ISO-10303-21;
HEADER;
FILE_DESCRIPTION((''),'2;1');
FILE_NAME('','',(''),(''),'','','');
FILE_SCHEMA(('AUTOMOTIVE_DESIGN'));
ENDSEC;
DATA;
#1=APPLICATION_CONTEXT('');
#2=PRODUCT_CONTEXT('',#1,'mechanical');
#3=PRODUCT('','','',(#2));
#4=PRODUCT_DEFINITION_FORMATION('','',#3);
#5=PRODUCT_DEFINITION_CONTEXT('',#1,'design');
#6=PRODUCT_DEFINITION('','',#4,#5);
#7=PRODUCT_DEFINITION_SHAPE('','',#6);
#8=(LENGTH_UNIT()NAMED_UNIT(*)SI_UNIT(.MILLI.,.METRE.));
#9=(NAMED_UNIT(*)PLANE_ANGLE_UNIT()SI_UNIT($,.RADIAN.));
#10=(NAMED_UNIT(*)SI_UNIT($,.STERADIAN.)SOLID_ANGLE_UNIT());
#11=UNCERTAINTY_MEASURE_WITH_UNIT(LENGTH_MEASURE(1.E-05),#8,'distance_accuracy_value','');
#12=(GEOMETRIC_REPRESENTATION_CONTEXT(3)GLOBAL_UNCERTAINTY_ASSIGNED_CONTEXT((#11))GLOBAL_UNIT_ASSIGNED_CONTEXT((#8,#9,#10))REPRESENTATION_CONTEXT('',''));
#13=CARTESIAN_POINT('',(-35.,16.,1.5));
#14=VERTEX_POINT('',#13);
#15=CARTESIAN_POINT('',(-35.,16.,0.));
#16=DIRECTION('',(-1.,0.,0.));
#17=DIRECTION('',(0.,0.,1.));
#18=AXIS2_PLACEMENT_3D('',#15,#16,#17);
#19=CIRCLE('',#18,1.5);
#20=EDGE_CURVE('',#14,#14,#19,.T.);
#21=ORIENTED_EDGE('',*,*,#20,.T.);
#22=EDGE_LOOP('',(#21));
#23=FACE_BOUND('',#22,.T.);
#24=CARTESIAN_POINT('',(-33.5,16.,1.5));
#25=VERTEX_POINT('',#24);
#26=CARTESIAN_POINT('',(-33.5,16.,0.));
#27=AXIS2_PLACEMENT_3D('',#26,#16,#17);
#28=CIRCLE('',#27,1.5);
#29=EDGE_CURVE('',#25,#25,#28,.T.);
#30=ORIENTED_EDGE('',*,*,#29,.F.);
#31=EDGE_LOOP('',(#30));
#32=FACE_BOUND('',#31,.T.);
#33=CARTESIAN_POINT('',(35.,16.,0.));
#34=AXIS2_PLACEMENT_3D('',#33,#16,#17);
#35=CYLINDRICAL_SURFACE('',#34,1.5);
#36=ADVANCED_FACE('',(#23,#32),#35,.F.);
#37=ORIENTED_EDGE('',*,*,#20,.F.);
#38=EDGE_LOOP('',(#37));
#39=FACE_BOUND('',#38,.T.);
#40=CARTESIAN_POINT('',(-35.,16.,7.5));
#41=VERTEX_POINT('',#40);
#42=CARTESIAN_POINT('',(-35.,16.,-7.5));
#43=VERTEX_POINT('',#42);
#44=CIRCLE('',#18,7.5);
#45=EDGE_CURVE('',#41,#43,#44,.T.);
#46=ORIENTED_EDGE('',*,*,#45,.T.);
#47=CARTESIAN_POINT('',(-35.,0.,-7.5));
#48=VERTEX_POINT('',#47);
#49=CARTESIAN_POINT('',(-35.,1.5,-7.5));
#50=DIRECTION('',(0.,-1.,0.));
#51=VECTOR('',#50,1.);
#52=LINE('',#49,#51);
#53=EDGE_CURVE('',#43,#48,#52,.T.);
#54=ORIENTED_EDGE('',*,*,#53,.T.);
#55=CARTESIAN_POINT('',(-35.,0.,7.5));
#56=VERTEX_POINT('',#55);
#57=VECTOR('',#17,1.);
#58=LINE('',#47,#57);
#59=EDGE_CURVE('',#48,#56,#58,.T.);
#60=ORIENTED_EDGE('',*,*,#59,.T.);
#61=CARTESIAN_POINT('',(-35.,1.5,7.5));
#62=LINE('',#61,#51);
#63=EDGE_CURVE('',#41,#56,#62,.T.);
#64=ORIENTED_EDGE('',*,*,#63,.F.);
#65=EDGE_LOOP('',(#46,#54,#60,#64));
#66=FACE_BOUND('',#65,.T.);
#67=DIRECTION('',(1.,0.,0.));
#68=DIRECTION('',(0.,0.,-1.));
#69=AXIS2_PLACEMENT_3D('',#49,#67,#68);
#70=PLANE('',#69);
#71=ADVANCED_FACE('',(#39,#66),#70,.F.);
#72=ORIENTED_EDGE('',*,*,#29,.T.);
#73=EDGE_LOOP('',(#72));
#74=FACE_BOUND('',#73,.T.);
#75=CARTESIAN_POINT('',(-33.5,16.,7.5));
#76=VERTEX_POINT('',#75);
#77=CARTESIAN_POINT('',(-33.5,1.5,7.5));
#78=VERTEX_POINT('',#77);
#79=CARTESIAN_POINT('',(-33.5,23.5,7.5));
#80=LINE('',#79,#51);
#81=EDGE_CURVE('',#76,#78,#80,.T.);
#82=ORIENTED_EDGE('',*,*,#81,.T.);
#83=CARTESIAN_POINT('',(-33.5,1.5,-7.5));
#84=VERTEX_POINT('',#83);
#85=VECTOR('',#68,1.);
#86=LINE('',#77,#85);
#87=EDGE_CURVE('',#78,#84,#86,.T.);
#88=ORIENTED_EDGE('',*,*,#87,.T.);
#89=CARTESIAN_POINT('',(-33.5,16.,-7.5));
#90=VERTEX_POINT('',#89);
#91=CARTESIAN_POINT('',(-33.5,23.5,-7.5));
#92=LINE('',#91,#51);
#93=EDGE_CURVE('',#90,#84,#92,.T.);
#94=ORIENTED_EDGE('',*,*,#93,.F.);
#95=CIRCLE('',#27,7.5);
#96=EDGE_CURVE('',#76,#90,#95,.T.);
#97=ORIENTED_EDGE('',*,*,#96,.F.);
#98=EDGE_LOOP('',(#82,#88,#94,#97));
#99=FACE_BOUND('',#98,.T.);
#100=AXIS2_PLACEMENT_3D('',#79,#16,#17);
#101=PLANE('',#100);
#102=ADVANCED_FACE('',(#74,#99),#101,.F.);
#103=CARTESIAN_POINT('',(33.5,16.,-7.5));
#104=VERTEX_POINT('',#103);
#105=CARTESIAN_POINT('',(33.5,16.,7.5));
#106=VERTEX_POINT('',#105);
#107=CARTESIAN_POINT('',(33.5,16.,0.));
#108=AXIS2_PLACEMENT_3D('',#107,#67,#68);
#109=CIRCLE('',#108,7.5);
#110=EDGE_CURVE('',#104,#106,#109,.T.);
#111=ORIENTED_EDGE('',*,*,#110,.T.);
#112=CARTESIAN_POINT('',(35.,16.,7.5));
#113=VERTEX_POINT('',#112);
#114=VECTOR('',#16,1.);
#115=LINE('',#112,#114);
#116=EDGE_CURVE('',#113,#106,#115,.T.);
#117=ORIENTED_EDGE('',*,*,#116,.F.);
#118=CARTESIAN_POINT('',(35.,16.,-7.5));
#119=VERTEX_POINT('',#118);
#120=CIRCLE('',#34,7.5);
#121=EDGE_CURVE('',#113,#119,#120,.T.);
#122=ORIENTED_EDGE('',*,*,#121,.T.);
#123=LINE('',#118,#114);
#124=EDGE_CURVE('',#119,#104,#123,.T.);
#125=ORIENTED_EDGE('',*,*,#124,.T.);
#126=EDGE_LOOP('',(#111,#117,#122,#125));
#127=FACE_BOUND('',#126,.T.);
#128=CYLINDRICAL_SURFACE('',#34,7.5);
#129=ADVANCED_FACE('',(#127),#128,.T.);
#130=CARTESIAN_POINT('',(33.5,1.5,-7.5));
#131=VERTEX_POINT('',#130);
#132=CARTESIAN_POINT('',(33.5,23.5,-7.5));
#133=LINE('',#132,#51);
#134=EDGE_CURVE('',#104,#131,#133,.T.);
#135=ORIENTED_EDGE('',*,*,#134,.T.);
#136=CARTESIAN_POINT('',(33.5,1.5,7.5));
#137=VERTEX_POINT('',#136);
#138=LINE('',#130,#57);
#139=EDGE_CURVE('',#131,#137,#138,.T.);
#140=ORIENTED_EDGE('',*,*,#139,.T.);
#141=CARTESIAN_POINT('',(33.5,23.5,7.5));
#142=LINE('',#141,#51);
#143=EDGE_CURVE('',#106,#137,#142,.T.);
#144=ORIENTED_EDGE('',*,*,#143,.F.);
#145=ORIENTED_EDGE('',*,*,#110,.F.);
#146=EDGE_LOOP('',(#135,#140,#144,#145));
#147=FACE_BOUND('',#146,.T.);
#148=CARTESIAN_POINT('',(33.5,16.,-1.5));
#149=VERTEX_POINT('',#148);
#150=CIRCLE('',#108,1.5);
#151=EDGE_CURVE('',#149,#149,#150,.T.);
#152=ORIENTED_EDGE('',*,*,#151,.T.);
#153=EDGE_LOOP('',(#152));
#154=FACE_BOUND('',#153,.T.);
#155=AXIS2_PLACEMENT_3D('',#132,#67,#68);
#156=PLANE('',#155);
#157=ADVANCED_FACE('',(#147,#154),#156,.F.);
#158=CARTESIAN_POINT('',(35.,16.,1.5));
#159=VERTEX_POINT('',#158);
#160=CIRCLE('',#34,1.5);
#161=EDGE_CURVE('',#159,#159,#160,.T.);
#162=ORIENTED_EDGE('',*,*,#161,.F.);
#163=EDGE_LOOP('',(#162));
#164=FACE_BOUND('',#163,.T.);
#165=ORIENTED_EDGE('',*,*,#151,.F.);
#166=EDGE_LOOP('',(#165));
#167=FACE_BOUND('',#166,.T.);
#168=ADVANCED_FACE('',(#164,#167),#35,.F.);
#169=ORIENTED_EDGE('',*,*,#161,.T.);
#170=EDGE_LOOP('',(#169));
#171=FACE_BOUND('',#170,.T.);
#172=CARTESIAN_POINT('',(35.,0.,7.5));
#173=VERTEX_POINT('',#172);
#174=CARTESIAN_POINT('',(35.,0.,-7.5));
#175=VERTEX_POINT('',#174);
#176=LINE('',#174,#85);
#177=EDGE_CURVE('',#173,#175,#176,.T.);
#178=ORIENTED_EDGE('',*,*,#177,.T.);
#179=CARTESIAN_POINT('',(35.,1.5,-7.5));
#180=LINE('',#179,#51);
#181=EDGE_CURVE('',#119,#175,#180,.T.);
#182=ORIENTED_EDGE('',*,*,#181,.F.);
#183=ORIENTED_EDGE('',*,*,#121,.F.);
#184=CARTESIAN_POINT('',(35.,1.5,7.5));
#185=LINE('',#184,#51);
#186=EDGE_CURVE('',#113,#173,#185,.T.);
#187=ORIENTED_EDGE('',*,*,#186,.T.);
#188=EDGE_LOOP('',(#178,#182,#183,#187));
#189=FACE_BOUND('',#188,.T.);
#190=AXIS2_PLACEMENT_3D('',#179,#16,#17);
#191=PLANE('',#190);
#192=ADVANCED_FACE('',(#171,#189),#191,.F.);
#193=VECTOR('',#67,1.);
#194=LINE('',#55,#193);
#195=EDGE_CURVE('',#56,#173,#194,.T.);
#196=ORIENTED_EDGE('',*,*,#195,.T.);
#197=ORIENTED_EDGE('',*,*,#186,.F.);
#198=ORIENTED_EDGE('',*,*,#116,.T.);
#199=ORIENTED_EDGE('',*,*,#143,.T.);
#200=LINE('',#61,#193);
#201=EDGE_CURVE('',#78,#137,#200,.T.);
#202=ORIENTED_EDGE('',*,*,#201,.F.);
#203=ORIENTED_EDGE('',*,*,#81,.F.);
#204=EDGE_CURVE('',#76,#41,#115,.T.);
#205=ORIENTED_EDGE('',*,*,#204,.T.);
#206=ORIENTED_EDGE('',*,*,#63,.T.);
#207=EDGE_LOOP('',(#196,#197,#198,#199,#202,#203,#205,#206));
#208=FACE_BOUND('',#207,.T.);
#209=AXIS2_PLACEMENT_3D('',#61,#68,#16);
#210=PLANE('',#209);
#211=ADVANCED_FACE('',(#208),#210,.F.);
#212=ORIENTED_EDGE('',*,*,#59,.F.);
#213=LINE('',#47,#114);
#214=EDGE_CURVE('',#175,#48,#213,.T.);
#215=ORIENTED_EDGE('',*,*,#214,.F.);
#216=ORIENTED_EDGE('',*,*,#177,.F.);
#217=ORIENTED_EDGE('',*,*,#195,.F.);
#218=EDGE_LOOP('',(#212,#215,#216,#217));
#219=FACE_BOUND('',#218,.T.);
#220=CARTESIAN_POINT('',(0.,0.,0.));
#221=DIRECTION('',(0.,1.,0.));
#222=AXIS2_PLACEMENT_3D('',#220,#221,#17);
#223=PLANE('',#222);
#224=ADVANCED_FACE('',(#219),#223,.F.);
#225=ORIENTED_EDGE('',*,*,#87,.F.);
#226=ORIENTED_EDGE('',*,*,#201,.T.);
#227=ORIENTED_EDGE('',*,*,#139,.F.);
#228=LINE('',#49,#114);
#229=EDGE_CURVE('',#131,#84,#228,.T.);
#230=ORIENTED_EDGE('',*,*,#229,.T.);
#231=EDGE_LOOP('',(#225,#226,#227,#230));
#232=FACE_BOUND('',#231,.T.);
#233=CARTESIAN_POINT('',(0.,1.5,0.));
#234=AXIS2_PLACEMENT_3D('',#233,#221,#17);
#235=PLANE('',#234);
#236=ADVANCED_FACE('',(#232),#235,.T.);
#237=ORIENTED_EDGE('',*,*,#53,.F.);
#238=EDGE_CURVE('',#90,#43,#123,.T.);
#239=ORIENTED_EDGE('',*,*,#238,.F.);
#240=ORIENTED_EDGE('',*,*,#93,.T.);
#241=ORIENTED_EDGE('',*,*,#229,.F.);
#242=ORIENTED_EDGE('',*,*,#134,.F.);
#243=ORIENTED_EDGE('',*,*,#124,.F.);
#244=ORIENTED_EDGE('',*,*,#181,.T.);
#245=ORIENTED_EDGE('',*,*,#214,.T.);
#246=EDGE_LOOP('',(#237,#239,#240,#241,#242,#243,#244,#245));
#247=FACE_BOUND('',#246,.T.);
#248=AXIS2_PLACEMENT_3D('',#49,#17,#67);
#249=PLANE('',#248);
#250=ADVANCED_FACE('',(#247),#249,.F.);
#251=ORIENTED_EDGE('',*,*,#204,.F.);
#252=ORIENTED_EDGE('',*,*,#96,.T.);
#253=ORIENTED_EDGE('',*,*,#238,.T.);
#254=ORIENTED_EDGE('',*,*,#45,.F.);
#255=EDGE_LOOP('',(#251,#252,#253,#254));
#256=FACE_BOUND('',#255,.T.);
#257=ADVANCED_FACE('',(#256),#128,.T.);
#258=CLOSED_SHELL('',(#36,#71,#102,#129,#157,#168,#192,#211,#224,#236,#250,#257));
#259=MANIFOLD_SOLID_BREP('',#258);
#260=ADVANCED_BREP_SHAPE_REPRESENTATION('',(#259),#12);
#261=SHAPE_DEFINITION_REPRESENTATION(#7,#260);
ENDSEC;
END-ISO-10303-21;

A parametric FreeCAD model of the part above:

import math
import FreeCAD as App
import Part
import Sketcher

V = App.Vector
Q = App.Units.Quantity

doc = App.newDocument("Part")
body = doc.addObject("PartDesign::Body", "Body")

# Sketch on XZ plane
sketch1 = body.newObject("Sketcher::SketchObject", "Sketch")
sketch1.AttachmentSupport = (doc.getObject("XZ_Plane"), [""])
sketch1.MapMode = "FlatFace"
sketch1.addGeometry([
    Part.LineSegment(V(-35, -8, 0), V(-35, 8, 0)),
    Part.LineSegment(V(-35, 8, 0), V(35, 8, 0)),
    Part.LineSegment(V(35, 8, 0), V(35, -8, 0)),
    Part.LineSegment(V(35, -8, 0), V(-35, -8, 0)),
], False)
sketch1.addConstraint([
    Sketcher.Constraint("Coincident", 0, 2, 1, 1),
    Sketcher.Constraint("Coincident", 1, 2, 2, 1),
    Sketcher.Constraint("Coincident", 2, 2, 3, 1),
    Sketcher.Constraint("Coincident", 3, 2, 0, 1),
    Sketcher.Constraint("Vertical", 0),
    Sketcher.Constraint("Horizontal", 1),
    Sketcher.Constraint("Vertical", 2),
    Sketcher.Constraint("Horizontal", 3),
    Sketcher.Constraint("Symmetric", 0, 2, 2, 2, -1, 1),
    Sketcher.Constraint("DistanceX", 1, 1, 1, 2, Q("70 mm")),
    Sketcher.Constraint("DistanceY", 0, 1, 0, 2, Q("15 mm")),
])
pad1 = body.newObject("PartDesign::Pad", "Pad")
pad1.Profile = sketch1
pad1.Length = 1.5
pad1.Reversed = True

# Sketch on XZ plane
sketch2 = body.newObject("Sketcher::SketchObject", "Sketch001")
sketch2.AttachmentSupport = (doc.getObject("XZ_Plane"), [""])
sketch2.MapMode = "FlatFace"
sketch2.AttachmentOffset = App.Placement(V(0, 0, -1.5), App.Rotation())
sketch2.addGeometry([
    Part.LineSegment(V(-35, -7.5, 0), V(-35, 7.5, 0)),  # 0
    Part.LineSegment(V(-35, 7.5, 0), V(-33.5, 7.5, 0)),  # 1
    Part.LineSegment(V(-33.5, 7.5, 0), V(-33.5, -7.5, 0)),  # 2
    Part.LineSegment(V(-33.5, -7.5, 0), V(-35, -7.5, 0)),  # 3
    Part.LineSegment(V(33.5, -7.5, 0), V(33.5, 7.5, 0)),  # 4
    Part.LineSegment(V(33.5, 7.5, 0), V(35, 7.5, 0)),  # 5
    Part.LineSegment(V(35, 7.5, 0), V(35, -7.5, 0)),  # 6
    Part.LineSegment(V(35, -7.5, 0), V(33.5, -7.5, 0)),  # 7
], False)
sketch2.addConstraint([
    Sketcher.Constraint("Coincident", 0, 2, 1, 1),
    Sketcher.Constraint("Coincident", 1, 2, 2, 1),
    Sketcher.Constraint("Coincident", 2, 2, 3, 1),
    Sketcher.Constraint("Coincident", 3, 2, 0, 1),
    Sketcher.Constraint("Coincident", 4, 2, 5, 1),
    Sketcher.Constraint("Coincident", 5, 2, 6, 1),
    Sketcher.Constraint("Coincident", 6, 2, 7, 1),
    Sketcher.Constraint("Coincident", 7, 2, 4, 1),
    Sketcher.Constraint("Vertical", 0),
    Sketcher.Constraint("Horizontal", 1),
    Sketcher.Constraint("Vertical", 2),
    Sketcher.Constraint("Horizontal", 3),
    Sketcher.Constraint("Vertical", 4),
    Sketcher.Constraint("Horizontal", 5),
    Sketcher.Constraint("Vertical", 6),
    Sketcher.Constraint("Horizontal", 7),
    Sketcher.Constraint("Symmetric", 2, 2, 4, 2, -1, 1),
    Sketcher.Constraint("Symmetric", 0, 2, 6, 2, -1, 1),
    Sketcher.Constraint("Horizontal", 1, 2, 4, 2),
    Sketcher.Constraint("DistanceY", 0, 1, 0, 2, Q("15 mm")),
    Sketcher.Constraint("DistanceX", 1, 1, 1, 2, Q("1.5 mm")),
    Sketcher.Constraint("DistanceX", 0, 2, -1, 1, Q("35 mm")),
])
pad2 = body.newObject("PartDesign::Pad", "Pad001")
pad2.Profile = sketch2
pad2.Length = 22
pad2.Reversed = True

# Sketch on YZ plane
sketch3 = body.newObject("Sketcher::SketchObject", "Sketch002")
sketch3.AttachmentSupport = (doc.getObject("YZ_Plane"), [""])
sketch3.MapMode = "FlatFace"
sketch3.AttachmentOffset = App.Placement(V(0, 0, -35), App.Rotation())
sketch3.addGeometry([
    Part.LineSegment(V(23.5, 7.5, 0), V(23.5, 0, 0)),  # 0
    Part.ArcOfCircle(Part.Circle(V(16, 0, 0), V(0, 0, 1), 7.5), math.radians(0), math.radians(90)),  # 1
    Part.LineSegment(V(16, 7.5, 0), V(23.5, 7.5, 0)),  # 2
    Part.LineSegment(V(23.5, -7.5, 0), V(16, -7.5, 0)),  # 3
    Part.ArcOfCircle(Part.Circle(V(16, 0, 0), V(0, 0, 1), 7.5), math.radians(-90), math.radians(0)),  # 4
    Part.LineSegment(V(23.5, 0, 0), V(23.5, -7.5, 0)),  # 5
    Part.Circle(V(16, 0, 0), V(0, 0, 1), 1.5),  # 6
], False)
sketch3.addConstraint([
    Sketcher.Constraint("Tangent", 0, 2, 1, 1),
    Sketcher.Constraint("Tangent", 1, 2, 2, 1),
    Sketcher.Constraint("Coincident", 2, 2, 0, 1),
    Sketcher.Constraint("Tangent", 3, 2, 4, 1),
    Sketcher.Constraint("Tangent", 4, 2, 5, 1),
    Sketcher.Constraint("Coincident", 5, 2, 3, 1),
    Sketcher.Constraint("Vertical", 0),
    Sketcher.Constraint("Horizontal", 2),
    Sketcher.Constraint("Horizontal", 3),
    Sketcher.Constraint("Vertical", 5),
    Sketcher.Constraint("Coincident", 4, 3, 1, 3),
    Sketcher.Constraint("Coincident", 6, 3, 1, 3),
    Sketcher.Constraint("Equal", 1, 4),
    Sketcher.Constraint("PointOnObject", 1, 3, -1),
    Sketcher.Constraint("Diameter", 6, Q("3 mm")),
    Sketcher.Constraint("Radius", 1, Q("7.5 mm")),
    Sketcher.Constraint("DistanceX", -1, 1, 1, 3, Q("16 mm")),
])
pocket1 = body.newObject("PartDesign::Pocket", "Pocket")
pocket1.Profile = sketch3
pocket1.Type = "ThroughAll"
pocket1.Reversed = True

doc.recompute()
